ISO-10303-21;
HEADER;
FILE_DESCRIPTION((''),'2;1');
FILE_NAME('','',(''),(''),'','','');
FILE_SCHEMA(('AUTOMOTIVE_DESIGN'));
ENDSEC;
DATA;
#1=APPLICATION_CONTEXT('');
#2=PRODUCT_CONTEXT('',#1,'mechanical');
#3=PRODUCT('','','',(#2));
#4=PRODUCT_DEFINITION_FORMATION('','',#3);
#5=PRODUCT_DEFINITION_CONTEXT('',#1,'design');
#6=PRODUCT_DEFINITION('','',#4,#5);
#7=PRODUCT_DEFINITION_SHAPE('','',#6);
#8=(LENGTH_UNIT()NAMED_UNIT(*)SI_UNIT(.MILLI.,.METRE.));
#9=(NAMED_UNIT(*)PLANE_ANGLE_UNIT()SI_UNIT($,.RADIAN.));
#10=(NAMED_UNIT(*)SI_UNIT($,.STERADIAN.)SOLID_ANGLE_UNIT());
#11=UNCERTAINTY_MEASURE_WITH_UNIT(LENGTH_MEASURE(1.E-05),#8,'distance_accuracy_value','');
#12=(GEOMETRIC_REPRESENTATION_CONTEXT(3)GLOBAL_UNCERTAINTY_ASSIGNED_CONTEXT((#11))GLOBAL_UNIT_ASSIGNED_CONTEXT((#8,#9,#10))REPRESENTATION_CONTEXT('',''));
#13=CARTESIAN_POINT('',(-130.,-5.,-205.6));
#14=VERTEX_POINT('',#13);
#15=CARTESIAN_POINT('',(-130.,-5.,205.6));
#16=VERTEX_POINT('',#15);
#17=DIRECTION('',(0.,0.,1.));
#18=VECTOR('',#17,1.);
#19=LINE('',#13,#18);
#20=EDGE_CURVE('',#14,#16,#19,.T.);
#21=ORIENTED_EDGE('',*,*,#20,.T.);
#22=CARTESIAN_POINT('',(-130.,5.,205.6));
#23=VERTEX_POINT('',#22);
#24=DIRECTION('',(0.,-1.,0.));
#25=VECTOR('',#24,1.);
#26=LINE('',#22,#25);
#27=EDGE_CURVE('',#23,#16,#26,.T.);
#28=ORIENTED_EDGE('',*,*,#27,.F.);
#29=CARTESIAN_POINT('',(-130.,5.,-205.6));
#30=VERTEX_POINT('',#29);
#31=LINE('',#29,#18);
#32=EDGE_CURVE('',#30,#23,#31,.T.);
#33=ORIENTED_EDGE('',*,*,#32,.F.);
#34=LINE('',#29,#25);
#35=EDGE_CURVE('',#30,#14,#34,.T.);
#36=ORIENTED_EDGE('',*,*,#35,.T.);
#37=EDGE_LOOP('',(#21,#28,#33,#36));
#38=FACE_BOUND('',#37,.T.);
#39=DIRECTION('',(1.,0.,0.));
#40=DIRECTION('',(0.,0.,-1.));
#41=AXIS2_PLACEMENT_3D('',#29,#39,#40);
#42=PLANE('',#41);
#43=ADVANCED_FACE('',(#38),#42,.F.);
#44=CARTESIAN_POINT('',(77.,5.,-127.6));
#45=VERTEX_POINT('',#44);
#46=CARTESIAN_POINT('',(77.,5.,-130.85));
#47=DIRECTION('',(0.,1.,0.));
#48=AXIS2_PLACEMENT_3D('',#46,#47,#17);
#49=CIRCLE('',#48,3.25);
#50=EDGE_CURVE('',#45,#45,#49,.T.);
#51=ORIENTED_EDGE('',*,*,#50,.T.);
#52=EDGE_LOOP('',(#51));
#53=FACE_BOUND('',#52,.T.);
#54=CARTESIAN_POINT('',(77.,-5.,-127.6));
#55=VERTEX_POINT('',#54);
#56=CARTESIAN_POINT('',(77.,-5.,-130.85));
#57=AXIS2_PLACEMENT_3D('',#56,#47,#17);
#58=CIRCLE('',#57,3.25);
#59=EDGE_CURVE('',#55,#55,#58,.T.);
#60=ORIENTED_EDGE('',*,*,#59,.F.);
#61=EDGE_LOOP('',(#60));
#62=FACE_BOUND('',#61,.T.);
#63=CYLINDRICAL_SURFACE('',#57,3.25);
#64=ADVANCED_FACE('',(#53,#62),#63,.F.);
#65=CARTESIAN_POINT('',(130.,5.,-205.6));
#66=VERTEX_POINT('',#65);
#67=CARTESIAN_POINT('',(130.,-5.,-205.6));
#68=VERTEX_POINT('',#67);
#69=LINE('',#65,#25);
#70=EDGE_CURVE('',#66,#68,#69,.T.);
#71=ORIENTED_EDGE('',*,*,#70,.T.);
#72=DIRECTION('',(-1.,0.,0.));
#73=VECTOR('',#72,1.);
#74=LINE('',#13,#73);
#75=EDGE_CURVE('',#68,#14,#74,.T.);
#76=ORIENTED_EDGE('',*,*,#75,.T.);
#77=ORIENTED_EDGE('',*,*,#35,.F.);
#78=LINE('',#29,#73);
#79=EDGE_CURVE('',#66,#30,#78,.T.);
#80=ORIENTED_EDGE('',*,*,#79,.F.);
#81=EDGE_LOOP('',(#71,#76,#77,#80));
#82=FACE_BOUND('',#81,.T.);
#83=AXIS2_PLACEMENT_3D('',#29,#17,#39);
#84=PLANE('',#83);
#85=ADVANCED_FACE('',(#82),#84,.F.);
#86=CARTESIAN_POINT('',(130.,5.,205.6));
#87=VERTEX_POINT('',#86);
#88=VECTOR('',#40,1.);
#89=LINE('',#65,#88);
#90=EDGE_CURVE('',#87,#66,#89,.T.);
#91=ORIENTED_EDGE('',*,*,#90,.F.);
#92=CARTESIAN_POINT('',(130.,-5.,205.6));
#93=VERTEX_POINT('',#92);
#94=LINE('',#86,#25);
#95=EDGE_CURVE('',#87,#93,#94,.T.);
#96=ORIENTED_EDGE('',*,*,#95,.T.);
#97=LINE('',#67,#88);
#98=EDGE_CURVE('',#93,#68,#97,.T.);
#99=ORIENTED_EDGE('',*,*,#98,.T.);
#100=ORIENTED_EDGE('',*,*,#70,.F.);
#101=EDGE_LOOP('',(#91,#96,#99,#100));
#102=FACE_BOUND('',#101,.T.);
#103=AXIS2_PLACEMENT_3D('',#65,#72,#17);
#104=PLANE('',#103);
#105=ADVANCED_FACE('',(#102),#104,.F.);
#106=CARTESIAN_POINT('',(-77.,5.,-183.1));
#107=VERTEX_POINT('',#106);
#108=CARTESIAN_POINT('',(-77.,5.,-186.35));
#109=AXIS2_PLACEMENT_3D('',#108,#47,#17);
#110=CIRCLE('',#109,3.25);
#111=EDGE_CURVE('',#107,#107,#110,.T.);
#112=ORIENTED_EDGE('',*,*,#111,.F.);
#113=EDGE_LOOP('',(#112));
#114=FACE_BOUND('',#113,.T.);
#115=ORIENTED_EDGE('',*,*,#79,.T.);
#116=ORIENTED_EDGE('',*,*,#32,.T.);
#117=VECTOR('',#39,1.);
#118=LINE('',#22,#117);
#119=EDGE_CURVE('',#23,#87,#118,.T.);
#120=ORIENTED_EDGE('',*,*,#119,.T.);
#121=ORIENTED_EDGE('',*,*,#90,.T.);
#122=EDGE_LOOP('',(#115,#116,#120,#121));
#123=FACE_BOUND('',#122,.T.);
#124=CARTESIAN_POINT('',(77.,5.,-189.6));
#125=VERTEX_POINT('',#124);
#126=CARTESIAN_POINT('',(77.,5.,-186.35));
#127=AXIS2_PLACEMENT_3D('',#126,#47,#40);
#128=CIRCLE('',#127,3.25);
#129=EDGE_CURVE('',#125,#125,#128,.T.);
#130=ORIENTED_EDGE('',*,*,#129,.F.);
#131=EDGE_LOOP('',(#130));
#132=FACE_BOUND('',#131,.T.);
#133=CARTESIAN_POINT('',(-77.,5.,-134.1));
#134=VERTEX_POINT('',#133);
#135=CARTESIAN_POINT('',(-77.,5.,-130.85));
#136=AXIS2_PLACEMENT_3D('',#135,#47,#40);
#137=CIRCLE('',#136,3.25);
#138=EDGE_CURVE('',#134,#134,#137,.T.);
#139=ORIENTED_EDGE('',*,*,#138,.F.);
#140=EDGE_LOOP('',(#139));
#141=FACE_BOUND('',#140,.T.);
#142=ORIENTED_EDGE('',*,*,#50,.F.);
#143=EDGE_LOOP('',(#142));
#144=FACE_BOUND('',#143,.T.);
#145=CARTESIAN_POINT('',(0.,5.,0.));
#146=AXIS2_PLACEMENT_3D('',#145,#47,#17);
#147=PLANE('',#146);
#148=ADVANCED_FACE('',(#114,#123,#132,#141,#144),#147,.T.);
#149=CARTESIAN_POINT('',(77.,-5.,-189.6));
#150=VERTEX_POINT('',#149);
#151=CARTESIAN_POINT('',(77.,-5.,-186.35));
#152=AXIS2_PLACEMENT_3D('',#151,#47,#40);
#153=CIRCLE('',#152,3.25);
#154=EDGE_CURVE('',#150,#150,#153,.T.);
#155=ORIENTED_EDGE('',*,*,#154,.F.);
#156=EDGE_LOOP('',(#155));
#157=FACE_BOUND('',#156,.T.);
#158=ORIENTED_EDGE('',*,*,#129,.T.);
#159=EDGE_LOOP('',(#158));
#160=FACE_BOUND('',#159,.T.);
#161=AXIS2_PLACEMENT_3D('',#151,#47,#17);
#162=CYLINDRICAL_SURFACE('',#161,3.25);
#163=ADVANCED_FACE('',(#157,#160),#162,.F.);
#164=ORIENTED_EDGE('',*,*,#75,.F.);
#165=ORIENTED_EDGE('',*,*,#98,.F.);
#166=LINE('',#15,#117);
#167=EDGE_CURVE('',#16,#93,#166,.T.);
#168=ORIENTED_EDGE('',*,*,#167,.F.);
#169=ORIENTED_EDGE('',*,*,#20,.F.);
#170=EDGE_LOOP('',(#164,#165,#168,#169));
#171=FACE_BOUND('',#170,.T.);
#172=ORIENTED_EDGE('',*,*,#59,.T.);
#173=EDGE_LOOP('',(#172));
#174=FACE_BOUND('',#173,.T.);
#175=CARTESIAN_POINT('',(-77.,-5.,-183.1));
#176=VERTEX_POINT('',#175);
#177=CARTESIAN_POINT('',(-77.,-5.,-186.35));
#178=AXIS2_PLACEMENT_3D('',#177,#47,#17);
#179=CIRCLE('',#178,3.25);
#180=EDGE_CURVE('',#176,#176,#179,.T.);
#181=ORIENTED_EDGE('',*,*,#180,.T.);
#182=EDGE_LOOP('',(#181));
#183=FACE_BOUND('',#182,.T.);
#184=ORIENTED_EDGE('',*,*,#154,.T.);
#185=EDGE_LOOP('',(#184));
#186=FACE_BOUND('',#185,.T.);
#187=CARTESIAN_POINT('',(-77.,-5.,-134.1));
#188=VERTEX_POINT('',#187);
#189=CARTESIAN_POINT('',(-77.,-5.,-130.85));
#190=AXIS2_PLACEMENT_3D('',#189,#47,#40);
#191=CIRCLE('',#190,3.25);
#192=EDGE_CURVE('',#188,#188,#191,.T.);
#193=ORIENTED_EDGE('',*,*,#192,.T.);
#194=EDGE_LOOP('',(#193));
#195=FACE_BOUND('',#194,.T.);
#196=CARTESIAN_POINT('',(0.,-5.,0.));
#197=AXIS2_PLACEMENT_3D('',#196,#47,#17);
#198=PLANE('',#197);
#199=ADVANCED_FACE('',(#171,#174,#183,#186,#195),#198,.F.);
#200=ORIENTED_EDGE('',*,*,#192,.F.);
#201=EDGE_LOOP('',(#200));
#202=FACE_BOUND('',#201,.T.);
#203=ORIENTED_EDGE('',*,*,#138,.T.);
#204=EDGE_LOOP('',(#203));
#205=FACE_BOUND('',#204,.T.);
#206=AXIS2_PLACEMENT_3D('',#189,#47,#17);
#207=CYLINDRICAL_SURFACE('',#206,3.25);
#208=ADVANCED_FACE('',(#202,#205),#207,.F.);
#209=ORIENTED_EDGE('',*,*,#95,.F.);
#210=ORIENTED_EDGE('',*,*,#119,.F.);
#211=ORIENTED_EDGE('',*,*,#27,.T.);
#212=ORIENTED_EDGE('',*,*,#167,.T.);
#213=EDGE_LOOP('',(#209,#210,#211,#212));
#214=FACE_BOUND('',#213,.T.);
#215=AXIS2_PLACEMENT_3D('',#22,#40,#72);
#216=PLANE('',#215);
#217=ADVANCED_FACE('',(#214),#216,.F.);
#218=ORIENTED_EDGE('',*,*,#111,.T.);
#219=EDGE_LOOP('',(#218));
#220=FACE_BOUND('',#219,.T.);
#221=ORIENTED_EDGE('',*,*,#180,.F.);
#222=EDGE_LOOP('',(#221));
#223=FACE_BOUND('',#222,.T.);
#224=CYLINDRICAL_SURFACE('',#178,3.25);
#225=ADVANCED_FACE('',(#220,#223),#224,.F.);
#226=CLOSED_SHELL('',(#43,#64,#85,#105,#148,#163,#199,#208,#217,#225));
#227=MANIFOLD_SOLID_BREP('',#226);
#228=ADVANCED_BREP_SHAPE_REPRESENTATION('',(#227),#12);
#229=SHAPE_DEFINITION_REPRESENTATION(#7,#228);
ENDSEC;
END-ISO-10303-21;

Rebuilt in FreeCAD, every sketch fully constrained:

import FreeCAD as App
import Part
import Sketcher

V = App.Vector
Q = App.Units.Quantity


def add_polygon(sketch, points):
    """Adds a closed chain of lines whose ends are joined by coincident constraints."""
    first, n = sketch.GeometryCount, len(points)
    for a, b in zip(points, points[1:] + points[:1]):
        sketch.addGeometry(Part.LineSegment(App.Vector(*a, 0), App.Vector(*b, 0)), False)
    for i in range(n):
        sketch.addConstraint(Sketcher.Constraint("Coincident", first + i, 2, first + (i + 1) % n, 1))

doc = App.newDocument("Part")
body = doc.addObject("PartDesign::Body", "Body")

sketch1 = body.newObject("Sketcher::SketchObject", "Sketch")
sketch1.AttachmentSupport = (doc.getObject("XZ_Plane"), [""])
sketch1.MapMode = "FlatFace"
add_polygon(sketch1, [(-130, -206), (-130, 206), (130, 206), (130, -206)])
sketch1.addConstraint([
    Sketcher.Constraint("Vertical", 0),
    Sketcher.Constraint("Horizontal", 1),
    Sketcher.Constraint("Vertical", 2),
    Sketcher.Constraint("Horizontal", 3),
    Sketcher.Constraint("Symmetric", 0, 2, 2, 2, -1, 1),
    Sketcher.Constraint("DistanceX", 1, 1, 1, 2, Q("260 mm")),
    Sketcher.Constraint("DistanceY", 0, 1, 0, 2, Q("411.2 mm")),
])
pad1 = body.newObject("PartDesign::Pad", "Pad")
pad1.Profile = sketch1
pad1.Length = 10
pad1.Midplane = True

sketch2 = body.newObject("Sketcher::SketchObject", "Sketch001")
sketch2.AttachmentSupport = (doc.getObject("XZ_Plane"), [""])
sketch2.MapMode = "FlatFace"
sketch2.AttachmentOffset = App.Placement(V(0, 0, -5), App.Rotation())
sketch2.addGeometry([
    Part.Circle(V(77, -186.3, 0), V(0, 0, 1), 3.2),
    Part.Circle(V(77, -130.8, 0), V(0, 0, 1), 3.2),
    Part.Circle(V(-77, -186.3, 0), V(0, 0, 1), 3.2),
    Part.Circle(V(-77, -130.8, 0), V(0, 0, 1), 3.2),
], False)
sketch2.addConstraint([
    Sketcher.Constraint("Equal", 0, 1),
    Sketcher.Constraint("Equal", 1, 2),
    Sketcher.Constraint("Equal", 2, 3),
    Sketcher.Constraint("Symmetric", 0, 3, 2, 3, -2),
    Sketcher.Constraint("Symmetric", 1, 3, 3, 3, -2),
    Sketcher.Constraint("Vertical", 0, 3, 1, 3),
    Sketcher.Constraint("Diameter", 0, Q("6.5 mm")),
    Sketcher.Constraint("DistanceX", -1, 1, 0, 3, Q("77 mm")),
    Sketcher.Constraint("DistanceY", 0, 3, 1, 3, Q("55.5 mm")),
    Sketcher.Constraint("DistanceY", 0, 3, -1, 1, Q("186.35 mm")),
])
pocket1 = body.newObject("PartDesign::Pocket", "Pocket")
pocket1.Profile = sketch2
pocket1.Type = "ThroughAll"
pocket1.Reversed = True

doc.recompute()
